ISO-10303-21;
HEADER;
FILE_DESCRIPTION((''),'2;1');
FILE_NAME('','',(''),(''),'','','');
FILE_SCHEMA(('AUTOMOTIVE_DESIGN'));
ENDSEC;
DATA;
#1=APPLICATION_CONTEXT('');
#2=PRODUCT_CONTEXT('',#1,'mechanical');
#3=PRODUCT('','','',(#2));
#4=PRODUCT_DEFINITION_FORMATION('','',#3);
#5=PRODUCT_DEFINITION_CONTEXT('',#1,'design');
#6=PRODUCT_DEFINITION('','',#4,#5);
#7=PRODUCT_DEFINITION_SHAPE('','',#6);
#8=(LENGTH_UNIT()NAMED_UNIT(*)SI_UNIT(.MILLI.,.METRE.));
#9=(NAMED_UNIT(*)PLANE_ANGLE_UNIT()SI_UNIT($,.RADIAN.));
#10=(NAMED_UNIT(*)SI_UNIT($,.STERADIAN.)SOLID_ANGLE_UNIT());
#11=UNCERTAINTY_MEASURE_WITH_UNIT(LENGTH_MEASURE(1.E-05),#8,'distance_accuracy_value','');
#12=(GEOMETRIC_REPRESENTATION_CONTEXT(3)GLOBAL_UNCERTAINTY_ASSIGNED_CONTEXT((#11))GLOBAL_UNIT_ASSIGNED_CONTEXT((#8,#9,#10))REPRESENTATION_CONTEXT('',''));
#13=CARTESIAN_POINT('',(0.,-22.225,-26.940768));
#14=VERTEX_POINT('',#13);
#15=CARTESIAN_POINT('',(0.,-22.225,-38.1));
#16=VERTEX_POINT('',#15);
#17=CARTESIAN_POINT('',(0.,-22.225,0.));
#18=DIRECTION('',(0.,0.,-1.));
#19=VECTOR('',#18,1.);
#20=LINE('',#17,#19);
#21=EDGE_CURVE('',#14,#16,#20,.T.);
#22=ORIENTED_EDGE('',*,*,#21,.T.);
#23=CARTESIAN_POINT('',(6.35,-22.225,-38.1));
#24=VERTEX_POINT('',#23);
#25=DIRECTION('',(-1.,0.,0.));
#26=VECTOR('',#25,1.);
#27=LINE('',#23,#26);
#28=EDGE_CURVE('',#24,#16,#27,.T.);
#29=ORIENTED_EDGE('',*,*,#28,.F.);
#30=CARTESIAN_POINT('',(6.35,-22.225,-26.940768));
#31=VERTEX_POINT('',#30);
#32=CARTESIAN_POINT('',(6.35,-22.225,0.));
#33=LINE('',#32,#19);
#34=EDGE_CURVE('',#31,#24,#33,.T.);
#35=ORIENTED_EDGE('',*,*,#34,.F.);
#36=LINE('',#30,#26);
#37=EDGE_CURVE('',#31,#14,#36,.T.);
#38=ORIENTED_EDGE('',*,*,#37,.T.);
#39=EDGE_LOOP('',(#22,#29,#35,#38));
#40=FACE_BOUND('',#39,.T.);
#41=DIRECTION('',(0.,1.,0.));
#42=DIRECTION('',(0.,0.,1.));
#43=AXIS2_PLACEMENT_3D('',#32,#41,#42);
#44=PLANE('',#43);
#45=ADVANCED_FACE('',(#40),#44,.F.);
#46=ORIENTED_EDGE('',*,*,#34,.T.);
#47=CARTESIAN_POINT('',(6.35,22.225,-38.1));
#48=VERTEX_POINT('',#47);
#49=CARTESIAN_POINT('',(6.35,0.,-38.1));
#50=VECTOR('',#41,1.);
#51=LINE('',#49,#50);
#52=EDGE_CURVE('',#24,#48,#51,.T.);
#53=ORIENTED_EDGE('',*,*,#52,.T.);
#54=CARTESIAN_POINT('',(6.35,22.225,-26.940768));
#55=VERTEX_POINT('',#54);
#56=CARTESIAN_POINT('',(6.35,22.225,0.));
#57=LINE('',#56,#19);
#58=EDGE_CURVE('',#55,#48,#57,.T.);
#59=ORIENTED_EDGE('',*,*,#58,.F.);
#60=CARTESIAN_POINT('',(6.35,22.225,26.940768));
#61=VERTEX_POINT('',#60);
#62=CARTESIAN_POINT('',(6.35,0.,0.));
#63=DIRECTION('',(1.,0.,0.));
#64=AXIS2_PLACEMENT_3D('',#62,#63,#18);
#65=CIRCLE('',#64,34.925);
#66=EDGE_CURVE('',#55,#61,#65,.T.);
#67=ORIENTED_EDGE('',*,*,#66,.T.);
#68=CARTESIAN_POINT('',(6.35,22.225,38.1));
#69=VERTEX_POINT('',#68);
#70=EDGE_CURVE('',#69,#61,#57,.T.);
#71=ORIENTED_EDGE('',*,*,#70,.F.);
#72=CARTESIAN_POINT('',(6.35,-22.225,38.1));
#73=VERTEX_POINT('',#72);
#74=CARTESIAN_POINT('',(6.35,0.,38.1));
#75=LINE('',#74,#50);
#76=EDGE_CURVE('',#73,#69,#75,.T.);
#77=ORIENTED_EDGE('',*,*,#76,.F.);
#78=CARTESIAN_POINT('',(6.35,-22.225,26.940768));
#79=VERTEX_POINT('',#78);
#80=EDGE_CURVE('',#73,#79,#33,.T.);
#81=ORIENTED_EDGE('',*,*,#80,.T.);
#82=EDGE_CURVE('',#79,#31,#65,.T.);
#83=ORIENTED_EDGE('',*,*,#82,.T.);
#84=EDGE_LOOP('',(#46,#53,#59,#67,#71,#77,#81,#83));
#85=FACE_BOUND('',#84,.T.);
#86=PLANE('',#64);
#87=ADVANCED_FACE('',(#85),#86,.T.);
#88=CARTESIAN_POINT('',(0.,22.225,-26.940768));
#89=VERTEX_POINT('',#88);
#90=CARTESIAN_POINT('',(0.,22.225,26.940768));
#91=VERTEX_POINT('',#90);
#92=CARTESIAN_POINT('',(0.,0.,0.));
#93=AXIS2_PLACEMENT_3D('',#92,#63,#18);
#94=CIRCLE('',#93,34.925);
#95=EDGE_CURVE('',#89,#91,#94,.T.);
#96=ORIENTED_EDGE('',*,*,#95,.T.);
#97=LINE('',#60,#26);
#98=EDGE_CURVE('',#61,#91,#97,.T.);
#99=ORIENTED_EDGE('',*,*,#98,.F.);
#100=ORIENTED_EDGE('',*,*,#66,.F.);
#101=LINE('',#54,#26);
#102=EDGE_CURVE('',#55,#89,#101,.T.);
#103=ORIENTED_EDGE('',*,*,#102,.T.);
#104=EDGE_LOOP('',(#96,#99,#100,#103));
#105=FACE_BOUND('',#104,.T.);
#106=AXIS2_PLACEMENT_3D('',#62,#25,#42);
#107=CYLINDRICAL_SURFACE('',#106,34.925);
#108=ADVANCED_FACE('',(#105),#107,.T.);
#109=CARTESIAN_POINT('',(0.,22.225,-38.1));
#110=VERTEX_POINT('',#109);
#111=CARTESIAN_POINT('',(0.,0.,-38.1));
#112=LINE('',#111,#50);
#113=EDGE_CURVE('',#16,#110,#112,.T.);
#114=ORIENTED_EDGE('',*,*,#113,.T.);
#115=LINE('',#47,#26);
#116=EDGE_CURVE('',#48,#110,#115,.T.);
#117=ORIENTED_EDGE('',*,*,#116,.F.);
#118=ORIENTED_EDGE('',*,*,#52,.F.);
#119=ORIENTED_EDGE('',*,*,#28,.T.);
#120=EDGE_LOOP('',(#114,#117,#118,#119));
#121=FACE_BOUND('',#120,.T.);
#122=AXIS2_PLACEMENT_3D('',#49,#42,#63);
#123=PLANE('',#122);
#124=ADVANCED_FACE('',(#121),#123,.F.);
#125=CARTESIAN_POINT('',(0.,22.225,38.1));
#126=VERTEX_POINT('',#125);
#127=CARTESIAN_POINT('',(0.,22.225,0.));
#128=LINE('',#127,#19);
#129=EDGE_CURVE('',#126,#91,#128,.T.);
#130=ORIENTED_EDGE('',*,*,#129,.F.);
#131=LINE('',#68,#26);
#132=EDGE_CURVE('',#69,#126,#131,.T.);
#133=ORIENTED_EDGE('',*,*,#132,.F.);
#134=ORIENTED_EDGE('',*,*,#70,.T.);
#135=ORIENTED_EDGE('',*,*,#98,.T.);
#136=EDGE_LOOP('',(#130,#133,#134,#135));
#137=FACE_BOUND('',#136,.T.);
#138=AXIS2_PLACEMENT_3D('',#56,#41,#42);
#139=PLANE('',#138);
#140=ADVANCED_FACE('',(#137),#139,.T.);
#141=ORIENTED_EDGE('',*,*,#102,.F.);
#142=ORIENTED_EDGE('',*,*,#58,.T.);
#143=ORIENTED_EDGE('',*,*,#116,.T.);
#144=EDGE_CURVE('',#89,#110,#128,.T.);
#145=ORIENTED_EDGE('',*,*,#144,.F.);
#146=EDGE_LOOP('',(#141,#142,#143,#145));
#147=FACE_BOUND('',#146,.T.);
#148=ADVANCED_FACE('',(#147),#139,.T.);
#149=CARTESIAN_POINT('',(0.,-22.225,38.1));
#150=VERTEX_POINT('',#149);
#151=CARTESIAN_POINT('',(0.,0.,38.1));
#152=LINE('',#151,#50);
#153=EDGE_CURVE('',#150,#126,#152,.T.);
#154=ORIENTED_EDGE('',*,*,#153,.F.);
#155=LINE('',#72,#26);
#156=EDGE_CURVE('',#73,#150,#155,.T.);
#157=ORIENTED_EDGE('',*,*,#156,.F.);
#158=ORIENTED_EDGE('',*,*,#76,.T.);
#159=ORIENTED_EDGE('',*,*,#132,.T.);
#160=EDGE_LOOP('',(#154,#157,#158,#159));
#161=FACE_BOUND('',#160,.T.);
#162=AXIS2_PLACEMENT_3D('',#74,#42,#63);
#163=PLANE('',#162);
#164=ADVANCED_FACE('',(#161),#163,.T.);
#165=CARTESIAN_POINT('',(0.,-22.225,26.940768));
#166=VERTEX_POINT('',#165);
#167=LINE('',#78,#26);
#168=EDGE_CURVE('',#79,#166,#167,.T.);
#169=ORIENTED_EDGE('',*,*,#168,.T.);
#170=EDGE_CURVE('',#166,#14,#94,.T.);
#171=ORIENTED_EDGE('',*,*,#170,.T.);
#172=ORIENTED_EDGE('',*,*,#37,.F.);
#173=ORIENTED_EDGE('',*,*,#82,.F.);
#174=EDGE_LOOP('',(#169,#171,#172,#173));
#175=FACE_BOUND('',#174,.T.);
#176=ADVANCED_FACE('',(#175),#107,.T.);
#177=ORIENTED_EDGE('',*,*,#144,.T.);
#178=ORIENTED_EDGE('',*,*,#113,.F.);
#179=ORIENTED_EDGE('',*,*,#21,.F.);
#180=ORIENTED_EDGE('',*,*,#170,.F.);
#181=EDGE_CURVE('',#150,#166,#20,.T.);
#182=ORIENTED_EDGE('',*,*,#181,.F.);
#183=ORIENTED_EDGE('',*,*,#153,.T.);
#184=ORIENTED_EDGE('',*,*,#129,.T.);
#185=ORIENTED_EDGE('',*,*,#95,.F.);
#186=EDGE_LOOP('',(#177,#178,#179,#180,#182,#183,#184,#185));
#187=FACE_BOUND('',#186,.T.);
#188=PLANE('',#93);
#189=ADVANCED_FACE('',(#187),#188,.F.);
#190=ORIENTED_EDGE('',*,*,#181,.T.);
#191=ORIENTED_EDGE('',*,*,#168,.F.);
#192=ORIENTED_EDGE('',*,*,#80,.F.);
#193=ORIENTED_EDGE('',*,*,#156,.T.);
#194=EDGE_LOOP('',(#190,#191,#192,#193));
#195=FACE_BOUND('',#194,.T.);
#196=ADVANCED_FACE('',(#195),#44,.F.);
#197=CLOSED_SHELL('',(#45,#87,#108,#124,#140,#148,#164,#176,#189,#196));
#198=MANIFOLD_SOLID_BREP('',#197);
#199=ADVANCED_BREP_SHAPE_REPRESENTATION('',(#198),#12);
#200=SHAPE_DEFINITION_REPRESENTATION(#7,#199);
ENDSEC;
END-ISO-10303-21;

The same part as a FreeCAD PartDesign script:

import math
import FreeCAD as App
import Part
import Sketcher
from FreeCAD import Vector
Q = App.Units.Quantity

doc = App.newDocument("Part")
params = doc.addObject("Spreadsheet::Sheet", "Params")
for row, (alias, value) in enumerate([
    ("sketch1_radius", "1.375 in"),
    ("sketch1_width", "1.75 in"),
    ("pad1_length", "0.25 in"),
], start=1):
    params.set(f"A{row}", alias)
    params.set(f"B{row}", "=" + value)
    params.setAlias(f"B{row}", alias)

body = doc.addObject("PartDesign::Body", "Body")

# Sketch on YZ plane
sketch1 = body.newObject("Sketcher::SketchObject", "Sketch")
sketch1.AttachmentSupport = (doc.getObject("YZ_Plane"), [""])
sketch1.MapMode = "FlatFace"
sketch1.addGeometry(Part.ArcOfCircle(Part.Circle(Vector(0, 0, 0), Vector(0, 0, 1), 34.925), math.radians(-50.478804), math.radians(50.478804)), False)
sketch1.addGeometry(Part.LineSegment(Vector(22.225, 26.940768, 0), Vector(22.225, 38.1, 0)), False)
sketch1.addGeometry(Part.LineSegment(Vector(22.225, 38.1, 0), Vector(-22.225, 38.1, 0)), False)
sketch1.addGeometry(Part.LineSegment(Vector(-22.225, 38.1, 0), Vector(-22.225, 26.940768, 0)), False)
sketch1.addGeometry(Part.ArcOfCircle(Part.Circle(Vector(0, 0, 0), Vector(0, 0, 1), 34.925), math.radians(129.521196), math.radians(230.478804)), False)
sketch1.addGeometry(Part.LineSegment(Vector(-22.225, -26.940768, 0), Vector(-22.225, -38.1, 0)), False)
sketch1.addGeometry(Part.LineSegment(Vector(-22.225, -38.1, 0), Vector(22.225, -38.1, 0)), False)
sketch1.addGeometry(Part.LineSegment(Vector(22.225, -38.1, 0), Vector(22.225, -26.940768, 0)), False)
sketch1.addConstraint(Sketcher.Constraint("Coincident", 0, 2, 1, 1))
sketch1.addConstraint(Sketcher.Constraint("Coincident", 1, 2, 2, 1))
sketch1.addConstraint(Sketcher.Constraint("Coincident", 2, 2, 3, 1))
sketch1.addConstraint(Sketcher.Constraint("Coincident", 3, 2, 4, 1))
sketch1.addConstraint(Sketcher.Constraint("Coincident", 4, 2, 5, 1))
sketch1.addConstraint(Sketcher.Constraint("Coincident", 5, 2, 6, 1))
sketch1.addConstraint(Sketcher.Constraint("Coincident", 6, 2, 7, 1))
sketch1.addConstraint(Sketcher.Constraint("Coincident", 7, 2, 0, 1))
sketch1.addConstraint(Sketcher.Constraint("Vertical", 1))
sketch1.addConstraint(Sketcher.Constraint("Horizontal", 2))
sketch1.addConstraint(Sketcher.Constraint("Vertical", 3))
sketch1.addConstraint(Sketcher.Constraint("Vertical", 5))
sketch1.addConstraint(Sketcher.Constraint("Horizontal", 6))
sketch1.addConstraint(Sketcher.Constraint("Vertical", 7))
sketch1.addConstraint(Sketcher.Constraint("Coincident", 0, 3, -1, 1))
sketch1.addConstraint(Sketcher.Constraint("Coincident", 4, 3, -1, 1))
sketch1.addConstraint(Sketcher.Constraint("Equal", 0, 4))
sketch1.addConstraint(Sketcher.Constraint("Symmetric", 1, 2, 5, 2, -1, 1))
sketch1.addConstraint(Sketcher.Constraint("Horizontal", 0, 2, 3, 2))
sketch1.addConstraint(Sketcher.Constraint("Horizontal", 4, 2, 7, 2))
sketch1.addConstraint(Sketcher.Constraint("Radius", 0, Q("1.375 in")))
sketch1.addConstraint(Sketcher.Constraint("DistanceY", 5, 2, 2, 2, Q("3 in")))
sketch1.addConstraint(Sketcher.Constraint("DistanceX", 2, 2, 2, 1, Q("1.75 in")))
sketch1.setExpression("Constraints[20]", "Params.sketch1_radius")
sketch1.setExpression("Constraints[22]", "Params.sketch1_width")
pad1 = body.newObject("PartDesign::Pad", "Pad")
pad1.Profile = sketch1
pad1.setExpression("Length", "Params.pad1_length")

doc.recompute()
